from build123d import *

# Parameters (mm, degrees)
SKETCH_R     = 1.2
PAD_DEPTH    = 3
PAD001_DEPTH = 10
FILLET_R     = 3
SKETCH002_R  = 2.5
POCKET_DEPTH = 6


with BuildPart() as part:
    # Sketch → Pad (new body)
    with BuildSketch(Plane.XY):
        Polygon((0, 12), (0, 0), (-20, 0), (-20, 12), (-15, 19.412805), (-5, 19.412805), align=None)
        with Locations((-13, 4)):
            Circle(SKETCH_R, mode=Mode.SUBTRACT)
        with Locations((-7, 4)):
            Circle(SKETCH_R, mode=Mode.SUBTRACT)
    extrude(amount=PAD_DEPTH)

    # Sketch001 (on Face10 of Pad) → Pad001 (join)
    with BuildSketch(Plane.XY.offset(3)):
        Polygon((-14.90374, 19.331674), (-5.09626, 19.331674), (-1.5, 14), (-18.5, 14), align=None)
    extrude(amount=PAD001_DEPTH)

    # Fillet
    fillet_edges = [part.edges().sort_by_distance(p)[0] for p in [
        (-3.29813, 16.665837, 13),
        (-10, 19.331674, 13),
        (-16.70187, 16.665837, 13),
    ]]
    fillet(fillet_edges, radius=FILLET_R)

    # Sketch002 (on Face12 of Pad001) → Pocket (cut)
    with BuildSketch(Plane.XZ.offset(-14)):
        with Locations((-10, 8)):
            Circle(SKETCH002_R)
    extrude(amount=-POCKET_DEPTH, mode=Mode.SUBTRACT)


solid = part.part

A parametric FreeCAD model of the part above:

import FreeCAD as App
import Part
import Sketcher
from FreeCAD import Vector
Q = App.Units.Quantity


def edges_at(feature, points):
    """Names of the edges that pass closest to the given points."""
    edges = feature.Shape.Edges
    near = lambda p: min(range(len(edges)), key=lambda i: edges[i].distToShape(Part.Vertex(*p))[0])
    return sorted({f"Edge{near(p) + 1}" for p in points})

doc = App.newDocument("Part")
body = doc.addObject("PartDesign::Body", "Body")

# Sketch on XY plane
sketch1 = doc.addObject("Sketcher::SketchObject", "Sketch")
body.addObject(sketch1)
sketch1.AttachmentSupport = (doc.XY_Plane, [""])
sketch1.MapMode = "FlatFace"
sketch1.addGeometry(Part.LineSegment(Vector(0, 0, 0), Vector(0, 12, 0)), False)
sketch1.addGeometry(Part.LineSegment(Vector(0, 12, 0), Vector(-5, 19.4, 0)), False)
sketch1.addGeometry(Part.LineSegment(Vector(-5, 19.4, 0), Vector(-15, 19.4, 0)), False)
sketch1.addGeometry(Part.LineSegment(Vector(-15, 19.4, 0), Vector(-20, 12, 0)), False)
sketch1.addGeometry(Part.LineSegment(Vector(-20, 12, 0), Vector(-20, 0, 0)), False)
sketch1.addGeometry(Part.LineSegment(Vector(-20, 0, 0), Vector(0, 0, 0)), False)
sketch1.addGeometry(Part.Circle(Vector(-7, 4, 0), Vector(0, 0, 1), 1.2), False)
sketch1.addGeometry(Part.Circle(Vector(-13, 4, 0), Vector(0, 0, 1), 1.2), False)
sketch1.addConstraint(Sketcher.Constraint("Coincident", 0, 2, 1, 1))
sketch1.addConstraint(Sketcher.Constraint("Coincident", 1, 2, 2, 1))
sketch1.addConstraint(Sketcher.Constraint("Coincident", 2, 2, 3, 1))
sketch1.addConstraint(Sketcher.Constraint("Coincident", 3, 2, 4, 1))
sketch1.addConstraint(Sketcher.Constraint("Coincident", 4, 2, 5, 1))
sketch1.addConstraint(Sketcher.Constraint("Coincident", 5, 2, 0, 1))
sketch1.addConstraint(Sketcher.Constraint("Vertical", 0))
sketch1.addConstraint(Sketcher.Constraint("Horizontal", 2))
sketch1.addConstraint(Sketcher.Constraint("Vertical", 4))
sketch1.addConstraint(Sketcher.Constraint("Horizontal", 5))
sketch1.addConstraint(Sketcher.Constraint("Coincident", 5, 2, -1, 1))
sketch1.addConstraint(Sketcher.Constraint("Equal", 6, 7))
sketch1.addConstraint(Sketcher.Constraint("Horizontal", 6, 3, 7, 3))
sketch1.addConstraint(Sketcher.Constraint("Horizontal", 0, 2, 3, 2))
sketch1.addConstraint(Sketcher.Constraint("Equal", 1, 3))
sketch1.addConstraint(Sketcher.Constraint("Diameter", 6, 2.4))
sketch1.addConstraint(Sketcher.Constraint("DistanceX", 2, 2, 2, 1, 10.0))
sketch1.addConstraint(Sketcher.Constraint("DistanceX", 5, 1, 5, 2, 20.0))
sketch1.addConstraint(Sketcher.Constraint("DistanceY", 0, 1, 0, 2, 12.0))
sketch1.addConstraint(Sketcher.Constraint("Angle", 1, Q("123.999999 deg")))
sketch1.addConstraint(Sketcher.Constraint("DistanceX", 6, 3, -1, 1, 7.0))
sketch1.addConstraint(Sketcher.Constraint("DistanceY", -1, 1, 6, 3, 4.0))
sketch1.addConstraint(Sketcher.Constraint("DistanceX", 7, 3, -1, 1, 13.0))
pad1 = doc.addObject("PartDesign::Pad", "Pad")
body.addObject(pad1)
pad1.Profile = sketch1
pad1.Length = 3

# Sketch on XY plane
sketch2 = doc.addObject("Sketcher::SketchObject", "Sketch001")
body.addObject(sketch2)
sketch2.AttachmentSupport = (doc.XY_Plane, [""])
sketch2.MapMode = "FlatFace"
sketch2.AttachmentOffset = App.Placement(Vector(0, 0, 3), App.Rotation())
sketch2.addGeometry(Part.LineSegment(Vector(-5, 19, 0), Vector(-15, 19, 0)), False)
sketch2.addGeometry(Part.LineSegment(Vector(-15, 19, 0), Vector(-18, 14, 0)), False)
sketch2.addGeometry(Part.LineSegment(Vector(-18, 14, 0), Vector(-2, 14, 0)), False)
sketch2.addGeometry(Part.LineSegment(Vector(-2, 14, 0), Vector(-5, 19, 0)), False)
sketch2.addConstraint(Sketcher.Constraint("Coincident", 0, 2, 1, 1))
sketch2.addConstraint(Sketcher.Constraint("Coincident", 1, 2, 2, 1))
sketch2.addConstraint(Sketcher.Constraint("Coincident", 2, 2, 3, 1))
sketch2.addConstraint(Sketcher.Constraint("Coincident", 3, 2, 0, 1))
sketch2.addConstraint(Sketcher.Constraint("Horizontal", 0))
sketch2.addConstraint(Sketcher.Constraint("Horizontal", 2))
sketch2.addConstraint(Sketcher.Constraint("Equal", 1, 3))
sketch2.addConstraint(Sketcher.Constraint("DistanceX", 2, 1, 2, 2, 17.0))
sketch2.addConstraint(Sketcher.Constraint("Angle", 1, Q("-124.000004 deg")))
sketch2.addConstraint(Sketcher.Constraint("DistanceY", -1, 1, 1, 2, 14.0))
sketch2.addConstraint(Sketcher.Constraint("DistanceX", 1, 2, -1, 1, 18.5))
sketch2.addConstraint(Sketcher.Constraint("DistanceX", 0, 2, 0, 1, 9.80748))
pad2 = doc.addObject("PartDesign::Pad", "Pad001")
body.addObject(pad2)
pad2.Profile = sketch2
pad2.Length = 10
doc.recompute()

fillet = doc.addObject("PartDesign::Fillet", "Fillet")
body.addObject(fillet)
fillet.Base = (pad2, edges_at(pad2, [(-3.298, 16.666, 13), (-10, 19.332, 13), (-16.702, 16.666, 13)]))
fillet.Radius = 3

# Sketch on XZ plane
sketch3 = doc.addObject("Sketcher::SketchObject", "Sketch002")
body.addObject(sketch3)
sketch3.AttachmentSupport = (doc.XZ_Plane, [""])
sketch3.MapMode = "FlatFace"
sketch3.AttachmentOffset = App.Placement(Vector(0, 0, -14), App.Rotation())
sketch3.addGeometry(Part.Circle(Vector(-10, 8, 0), Vector(0, 0, 1), 2.5), False)
sketch3.addConstraint(Sketcher.Constraint("Diameter", 0, 5.0))
sketch3.addConstraint(Sketcher.Constraint("DistanceX", 0, 3, -1, 1, 10.0))
sketch3.addConstraint(Sketcher.Constraint("DistanceY", -1, 1, 0, 3, 8.0))
pocket1 = doc.addObject("PartDesign::Pocket", "Pocket")
body.addObject(pocket1)
pocket1.Profile = sketch3
pocket1.Length = 6

doc.recompute()
